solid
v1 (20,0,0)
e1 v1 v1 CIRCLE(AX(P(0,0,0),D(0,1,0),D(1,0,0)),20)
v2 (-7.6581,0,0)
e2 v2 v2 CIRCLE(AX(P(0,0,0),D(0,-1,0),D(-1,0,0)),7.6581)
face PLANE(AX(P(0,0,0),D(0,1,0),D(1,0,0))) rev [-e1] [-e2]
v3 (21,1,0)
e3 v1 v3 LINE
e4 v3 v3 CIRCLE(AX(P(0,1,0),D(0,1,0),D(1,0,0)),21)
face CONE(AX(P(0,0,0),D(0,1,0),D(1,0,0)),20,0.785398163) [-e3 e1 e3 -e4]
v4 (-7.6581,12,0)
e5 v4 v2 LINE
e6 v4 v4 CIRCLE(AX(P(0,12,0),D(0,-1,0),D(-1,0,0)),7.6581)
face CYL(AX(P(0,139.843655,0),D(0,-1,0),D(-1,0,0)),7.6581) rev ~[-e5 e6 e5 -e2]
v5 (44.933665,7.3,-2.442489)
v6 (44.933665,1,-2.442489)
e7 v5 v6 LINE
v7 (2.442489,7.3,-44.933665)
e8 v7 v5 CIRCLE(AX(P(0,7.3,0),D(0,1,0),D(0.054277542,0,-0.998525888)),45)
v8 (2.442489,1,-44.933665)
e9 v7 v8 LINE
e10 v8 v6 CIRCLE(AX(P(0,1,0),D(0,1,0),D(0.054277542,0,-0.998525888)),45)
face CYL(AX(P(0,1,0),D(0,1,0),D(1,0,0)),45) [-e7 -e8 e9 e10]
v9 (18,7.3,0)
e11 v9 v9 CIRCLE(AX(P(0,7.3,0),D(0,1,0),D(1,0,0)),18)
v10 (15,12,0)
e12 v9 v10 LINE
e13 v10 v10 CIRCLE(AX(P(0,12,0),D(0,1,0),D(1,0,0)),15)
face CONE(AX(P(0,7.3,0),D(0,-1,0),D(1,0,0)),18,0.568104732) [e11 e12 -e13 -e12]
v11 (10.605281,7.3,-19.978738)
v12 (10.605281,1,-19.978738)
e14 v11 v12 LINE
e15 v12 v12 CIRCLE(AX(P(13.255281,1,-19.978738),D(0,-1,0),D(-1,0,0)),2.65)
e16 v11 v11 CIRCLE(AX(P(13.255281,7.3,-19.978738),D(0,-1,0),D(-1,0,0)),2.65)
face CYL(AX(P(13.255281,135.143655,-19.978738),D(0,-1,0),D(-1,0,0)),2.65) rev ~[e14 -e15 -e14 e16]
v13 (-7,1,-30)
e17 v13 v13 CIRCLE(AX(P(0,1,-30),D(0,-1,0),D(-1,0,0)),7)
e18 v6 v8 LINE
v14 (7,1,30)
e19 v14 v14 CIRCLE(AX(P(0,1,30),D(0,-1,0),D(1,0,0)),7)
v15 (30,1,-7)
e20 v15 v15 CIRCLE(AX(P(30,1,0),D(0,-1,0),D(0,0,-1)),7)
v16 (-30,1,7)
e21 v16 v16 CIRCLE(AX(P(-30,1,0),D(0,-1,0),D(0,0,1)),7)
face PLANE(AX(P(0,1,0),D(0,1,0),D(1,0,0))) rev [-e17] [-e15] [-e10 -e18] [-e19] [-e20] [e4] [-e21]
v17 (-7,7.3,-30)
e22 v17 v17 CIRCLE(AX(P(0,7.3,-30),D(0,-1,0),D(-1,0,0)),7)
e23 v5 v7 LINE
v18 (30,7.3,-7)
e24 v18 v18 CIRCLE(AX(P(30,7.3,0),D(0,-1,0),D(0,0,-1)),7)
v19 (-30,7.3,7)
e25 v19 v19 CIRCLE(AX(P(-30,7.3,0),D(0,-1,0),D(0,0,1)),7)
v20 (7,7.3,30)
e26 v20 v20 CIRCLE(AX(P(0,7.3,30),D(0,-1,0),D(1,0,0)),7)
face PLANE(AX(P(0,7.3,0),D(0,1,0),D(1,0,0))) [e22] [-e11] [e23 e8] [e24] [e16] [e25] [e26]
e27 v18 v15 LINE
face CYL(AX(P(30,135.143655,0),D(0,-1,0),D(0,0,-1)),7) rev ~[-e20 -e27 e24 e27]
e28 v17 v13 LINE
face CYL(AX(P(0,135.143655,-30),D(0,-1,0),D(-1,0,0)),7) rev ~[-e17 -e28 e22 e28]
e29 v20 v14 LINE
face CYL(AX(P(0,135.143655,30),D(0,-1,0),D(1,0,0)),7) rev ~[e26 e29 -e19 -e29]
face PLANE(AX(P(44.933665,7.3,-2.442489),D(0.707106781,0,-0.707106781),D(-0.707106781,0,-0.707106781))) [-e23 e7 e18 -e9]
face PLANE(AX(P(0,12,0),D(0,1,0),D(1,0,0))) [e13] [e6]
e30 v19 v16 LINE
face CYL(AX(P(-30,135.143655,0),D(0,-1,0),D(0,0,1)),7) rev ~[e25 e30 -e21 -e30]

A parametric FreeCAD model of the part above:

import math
import FreeCAD as App
import Part
import Sketcher
from FreeCAD import Vector
Q = App.Units.Quantity


def add_polygon(sketch, points):
    """Adds a closed chain of lines whose ends are joined by coincident constraints."""
    first, n = sketch.GeometryCount, len(points)
    for a, b in zip(points, points[1:] + points[:1]):
        sketch.addGeometry(Part.LineSegment(App.Vector(*a, 0), App.Vector(*b, 0)), False)
    for i in range(n):
        sketch.addConstraint(Sketcher.Constraint("Coincident", first + i, 2, first + (i + 1) % n, 1))

doc = App.newDocument("Part")
body = doc.addObject("PartDesign::Body", "Body")

sketch1 = body.newObject("Sketcher::SketchObject", "Sketch")
sketch1.AttachmentSupport = (doc.getObject("XY_Plane"), [""])
sketch1.MapMode = "FlatFace"
add_polygon(sketch1, [(15, 12), (0, 12), (0, 0), (20, 0), (21, 1), (45, 1), (45, 7.3), (18, 7.3)])
sketch1.addConstraint(Sketcher.Constraint("Horizontal", 0))
sketch1.addConstraint(Sketcher.Constraint("Vertical", 1))
sketch1.addConstraint(Sketcher.Constraint("Horizontal", 2))
sketch1.addConstraint(Sketcher.Constraint("Horizontal", 4))
sketch1.addConstraint(Sketcher.Constraint("Vertical", 5))
sketch1.addConstraint(Sketcher.Constraint("Horizontal", 6))
sketch1.addConstraint(Sketcher.Constraint("Coincident", 1, 2, -1, 1))
sketch1.addConstraint(Sketcher.Constraint("DistanceX", 0, 2, 0, 1, 15.0))
sketch1.addConstraint(Sketcher.Constraint("DistanceX", 2, 1, 2, 2, 20.0))
sketch1.addConstraint(Sketcher.Constraint("DistanceX", 4, 1, 4, 2, 24.0))
sketch1.addConstraint(Sketcher.Constraint("DistanceX", 6, 2, 6, 1, 27.0))
sketch1.addConstraint(Sketcher.Constraint("DistanceY", 1, 2, 1, 1, 12.0))
sketch1.addConstraint(Sketcher.Constraint("Angle", 3, Q("45 deg")))
sketch1.addConstraint(Sketcher.Constraint("DistanceY", 5, 1, 5, 2, 6.3))
sketch1.addConstraint(Sketcher.Constraint("DistanceX", -1, 1, 3, 2, 21.0))
revolution = body.newObject("PartDesign::Revolution", "Revolution")
revolution.Profile = sketch1
revolution.ReferenceAxis = (sketch1, ["V_Axis"])
revolution.Angle = 360

sketch2 = body.newObject("Sketcher::SketchObject", "Sketch001")
sketch2.AttachmentSupport = (doc.getObject("XZ_Plane"), [""])
sketch2.MapMode = "FlatFace"
sketch2.AttachmentOffset = App.Placement(Vector(0, 0, -7.3), App.Rotation())
sketch2.addGeometry(Part.Circle(Vector(0, -30, 0), Vector(0, 0, 1), 7), False)
sketch2.addConstraint(Sketcher.Constraint("PointOnObject", 0, 3, -2))
sketch2.addConstraint(Sketcher.Constraint("Diameter", 0, 14.0))
sketch2.addConstraint(Sketcher.Constraint("DistanceY", 0, 3, -1, 1, 30.0))
doc.recompute()
hole = body.newObject("PartDesign::Hole", "Hole")
hole.Profile = sketch2
hole.ThreadType = "None"
hole.Diameter = 14
hole.DepthType = "ThroughAll"
hole.Reversed = True
doc.recompute()

polarpattern = body.newObject("PartDesign::PolarPattern", "PolarPattern")
polarpattern.Originals = [hole]
polarpattern.Axis = (doc.getObject("Y_Axis"), [""])
polarpattern.Angle = 360
polarpattern.Occurrences = 4
body.Tip = polarpattern

sketch3 = body.newObject("Sketcher::SketchObject", "Sketch002")
sketch3.AttachmentSupport = (doc.getObject("XZ_Plane"), [""])
sketch3.MapMode = "FlatFace"
sketch3.AttachmentOffset = App.Placement(Vector(0, 0, -12), App.Rotation())
sketch3.addGeometry(Part.Circle(Vector(0, 0, 0), Vector(0, 0, 1), 8), False)
sketch3.addConstraint(Sketcher.Constraint("Coincident", 0, 3, -1, 1))
sketch3.addConstraint(Sketcher.Constraint("Diameter", 0, 15.3162))
doc.recompute()
hole2 = body.newObject("PartDesign::Hole", "Hole001")
hole2.Profile = sketch3
hole2.ThreadType = "None"
hole2.Diameter = 15.3162
hole2.DepthType = "ThroughAll"
hole2.Reversed = True

sketch4 = body.newObject("Sketcher::SketchObject", "Sketch003")
sketch4.AttachmentSupport = (doc.getObject("XZ_Plane"), [""])
sketch4.MapMode = "FlatFace"
sketch4.AttachmentOffset = App.Placement(Vector(0, 0, -7.3), App.Rotation())
sketch4.addGeometry(Part.LineSegment(Vector(2, -45, 0), Vector(45, -2, 0)), False)
sketch4.addGeometry(Part.ArcOfCircle(Part.Circle(Vector(0, 0, 0), Vector(0, 0, 1), 45), math.radians(-87), math.radians(-3)), False)
sketch4.addConstraint(Sketcher.Constraint("Coincident", 0, 1, 1, 1))
sketch4.addConstraint(Sketcher.Constraint("Coincident", 1, 2, 0, 2))
sketch4.addConstraint(Sketcher.Constraint("Coincident", 1, 3, -1, 1))
sketch4.addConstraint(Sketcher.Constraint("Radius", 1, 45.0))
sketch4.addConstraint(Sketcher.Constraint("Angle", 0, Q("45 deg")))
sketch4.addConstraint(Sketcher.Constraint("DistanceX", -1, 1, 0, 1, 2.442489))
pocket1 = body.newObject("PartDesign::Pocket", "Pocket")
pocket1.Profile = sketch4
pocket1.Length = 6.3
pocket1.Reversed = True

sketch5 = body.newObject("Sketcher::SketchObject", "Sketch004")
sketch5.AttachmentSupport = (doc.getObject("XZ_Plane"), [""])
sketch5.MapMode = "FlatFace"
sketch5.AttachmentOffset = App.Placement(Vector(0, 0, -7.3), App.Rotation())
sketch5.addGeometry(Part.Circle(Vector(13.3, -20, 0), Vector(0, 0, 1), 2.6), False)
sketch5.addConstraint(Sketcher.Constraint("Diameter", 0, 5.3))
sketch5.addConstraint(Sketcher.Constraint("DistanceX", -1, 1, 0, 3, 13.255281))
sketch5.addConstraint(Sketcher.Constraint("DistanceY", 0, 3, -1, 1, 19.978738))
doc.recompute()
hole3 = body.newObject("PartDesign::Hole", "Hole002")
hole3.Profile = sketch5
hole3.ThreadType = "None"
hole3.Diameter = 5.3
hole3.DepthType = "ThroughAll"
hole3.Reversed = True

doc.recompute()
